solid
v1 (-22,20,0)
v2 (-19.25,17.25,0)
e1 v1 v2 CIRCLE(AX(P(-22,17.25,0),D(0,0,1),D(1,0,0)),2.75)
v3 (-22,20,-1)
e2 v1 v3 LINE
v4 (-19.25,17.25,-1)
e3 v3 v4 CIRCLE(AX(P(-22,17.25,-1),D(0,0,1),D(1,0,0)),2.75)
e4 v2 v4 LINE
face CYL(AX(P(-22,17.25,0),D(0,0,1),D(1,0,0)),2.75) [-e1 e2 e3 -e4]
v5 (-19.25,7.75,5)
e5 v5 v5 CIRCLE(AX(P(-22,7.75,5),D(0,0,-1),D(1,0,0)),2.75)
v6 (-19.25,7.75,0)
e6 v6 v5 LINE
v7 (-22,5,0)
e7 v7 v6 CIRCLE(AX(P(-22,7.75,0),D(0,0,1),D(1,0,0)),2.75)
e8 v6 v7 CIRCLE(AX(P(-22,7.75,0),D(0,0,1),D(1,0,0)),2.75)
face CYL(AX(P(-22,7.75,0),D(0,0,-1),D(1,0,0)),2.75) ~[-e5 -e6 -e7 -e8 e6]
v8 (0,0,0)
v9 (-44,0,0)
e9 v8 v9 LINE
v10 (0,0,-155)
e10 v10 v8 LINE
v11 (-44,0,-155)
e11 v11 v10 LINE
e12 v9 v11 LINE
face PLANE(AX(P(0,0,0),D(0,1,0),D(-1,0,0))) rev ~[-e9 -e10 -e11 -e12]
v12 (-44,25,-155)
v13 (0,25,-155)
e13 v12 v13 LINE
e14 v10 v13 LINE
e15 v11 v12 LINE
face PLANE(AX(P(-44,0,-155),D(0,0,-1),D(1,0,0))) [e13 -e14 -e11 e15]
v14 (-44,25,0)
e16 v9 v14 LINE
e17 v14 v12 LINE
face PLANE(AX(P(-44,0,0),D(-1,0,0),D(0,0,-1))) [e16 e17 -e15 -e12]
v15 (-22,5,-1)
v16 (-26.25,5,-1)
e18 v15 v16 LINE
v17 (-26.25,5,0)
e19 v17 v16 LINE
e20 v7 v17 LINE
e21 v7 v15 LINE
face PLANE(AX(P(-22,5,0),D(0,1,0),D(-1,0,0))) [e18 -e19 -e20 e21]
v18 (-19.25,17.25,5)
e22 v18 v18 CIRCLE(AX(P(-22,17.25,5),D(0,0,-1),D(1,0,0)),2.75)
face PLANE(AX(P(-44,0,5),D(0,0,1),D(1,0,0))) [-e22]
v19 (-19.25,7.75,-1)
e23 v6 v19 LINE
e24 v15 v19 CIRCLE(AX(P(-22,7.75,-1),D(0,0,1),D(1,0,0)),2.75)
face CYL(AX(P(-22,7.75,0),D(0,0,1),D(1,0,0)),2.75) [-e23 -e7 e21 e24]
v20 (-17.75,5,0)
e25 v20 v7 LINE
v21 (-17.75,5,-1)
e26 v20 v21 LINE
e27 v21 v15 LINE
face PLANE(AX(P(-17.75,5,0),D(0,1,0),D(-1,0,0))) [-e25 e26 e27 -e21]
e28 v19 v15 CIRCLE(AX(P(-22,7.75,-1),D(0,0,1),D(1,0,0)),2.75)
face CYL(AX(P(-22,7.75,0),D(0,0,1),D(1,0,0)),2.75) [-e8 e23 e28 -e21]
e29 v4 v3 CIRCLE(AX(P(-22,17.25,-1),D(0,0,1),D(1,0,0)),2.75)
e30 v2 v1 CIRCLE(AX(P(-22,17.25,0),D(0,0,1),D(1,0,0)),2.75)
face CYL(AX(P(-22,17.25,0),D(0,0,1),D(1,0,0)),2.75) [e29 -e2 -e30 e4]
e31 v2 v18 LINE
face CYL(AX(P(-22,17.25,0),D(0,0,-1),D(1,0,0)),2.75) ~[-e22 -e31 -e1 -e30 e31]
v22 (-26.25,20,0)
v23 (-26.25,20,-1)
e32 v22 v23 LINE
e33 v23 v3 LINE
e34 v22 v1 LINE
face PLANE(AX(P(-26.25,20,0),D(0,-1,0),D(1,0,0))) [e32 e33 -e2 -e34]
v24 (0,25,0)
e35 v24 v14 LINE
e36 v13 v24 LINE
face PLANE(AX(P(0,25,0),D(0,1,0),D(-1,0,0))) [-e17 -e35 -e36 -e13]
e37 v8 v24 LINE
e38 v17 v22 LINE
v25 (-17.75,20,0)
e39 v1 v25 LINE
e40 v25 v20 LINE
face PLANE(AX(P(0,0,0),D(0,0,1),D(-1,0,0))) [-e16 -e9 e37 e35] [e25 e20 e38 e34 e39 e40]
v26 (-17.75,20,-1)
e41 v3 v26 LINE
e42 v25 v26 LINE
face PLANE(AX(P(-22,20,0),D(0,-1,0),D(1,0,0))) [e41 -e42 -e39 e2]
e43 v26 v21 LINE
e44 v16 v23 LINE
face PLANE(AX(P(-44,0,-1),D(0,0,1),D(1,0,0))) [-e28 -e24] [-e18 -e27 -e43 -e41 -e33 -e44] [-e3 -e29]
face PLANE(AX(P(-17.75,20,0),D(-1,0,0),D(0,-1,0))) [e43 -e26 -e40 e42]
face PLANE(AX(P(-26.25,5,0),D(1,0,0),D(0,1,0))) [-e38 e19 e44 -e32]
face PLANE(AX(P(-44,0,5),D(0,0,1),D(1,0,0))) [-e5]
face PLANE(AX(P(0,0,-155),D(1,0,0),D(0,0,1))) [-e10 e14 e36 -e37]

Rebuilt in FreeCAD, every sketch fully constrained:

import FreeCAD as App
import Part
import Sketcher

doc = App.newDocument("Part")
body = doc.addObject("PartDesign::Body", "Body")

sketch1 = body.newObject("Sketcher::SketchObject", "Sketch")
sketch1.AttachmentSupport = (doc.getObject("XZ_Plane"), [""])
sketch1.MapMode = "FlatFace"
sketch1.addGeometry([
    Part.LineSegment(App.Vector(-44, 0, 0), App.Vector(0, 0, 0)),
    Part.LineSegment(App.Vector(0, 0, 0), App.Vector(0, -155, 0)),
    Part.LineSegment(App.Vector(0, -155, 0), App.Vector(-44, -155, 0)),
    Part.LineSegment(App.Vector(-44, -155, 0), App.Vector(-44, 0, 0)),
], False)
sketch1.addConstraint([
    Sketcher.Constraint("Coincident", 0, 2, 1, 1),
    Sketcher.Constraint("Coincident", 1, 2, 2, 1),
    Sketcher.Constraint("Coincident", 2, 2, 3, 1),
    Sketcher.Constraint("Coincident", 3, 2, 0, 1),
    Sketcher.Constraint("Horizontal", 0),
    Sketcher.Constraint("Vertical", 1),
    Sketcher.Constraint("Horizontal", 2),
    Sketcher.Constraint("Vertical", 3),
    Sketcher.Constraint("Coincident", 0, 2, -1, 1),
    Sketcher.Constraint("DistanceX", 0, 1, 0, 2, 44.0),
    Sketcher.Constraint("DistanceY", 1, 2, 1, 1, 155.0),
])
pad1 = body.newObject("PartDesign::Pad", "Pad")
pad1.Profile = sketch1
pad1.Length = 25
pad1.Reversed = True

sketch2 = body.newObject("Sketcher::SketchObject", "Sketch001")
sketch2.AttachmentSupport = (doc.getObject("XY_Plane"), [""])
sketch2.MapMode = "FlatFace"
sketch2.addGeometry([
    Part.LineSegment(App.Vector(-22, 20, 0), App.Vector(-26.2, 20, 0)),
    Part.LineSegment(App.Vector(-26.2, 20, 0), App.Vector(-26.2, 5, 0)),
    Part.LineSegment(App.Vector(-26.2, 5, 0), App.Vector(-22, 5, 0)),
    Part.LineSegment(App.Vector(-22, 5, 0), App.Vector(-17.8, 5, 0)),
    Part.LineSegment(App.Vector(-17.8, 5, 0), App.Vector(-17.8, 20, 0)),
    Part.LineSegment(App.Vector(-17.8, 20, 0), App.Vector(-22, 20, 0)),
    Part.Circle(App.Vector(-22, 7.8, 0), App.Vector(0, 0, 1), 2.8),
    Part.Circle(App.Vector(-22, 17.2, 0), App.Vector(0, 0, 1), 2.8),
], False)
sketch2.addConstraint([
    Sketcher.Constraint("Coincident", 0, 2, 1, 1),
    Sketcher.Constraint("Coincident", 1, 2, 2, 1),
    Sketcher.Constraint("Coincident", 2, 2, 3, 1),
    Sketcher.Constraint("Coincident", 3, 2, 4, 1),
    Sketcher.Constraint("Coincident", 4, 2, 5, 1),
    Sketcher.Constraint("Coincident", 5, 2, 0, 1),
    Sketcher.Constraint("Horizontal", 0),
    Sketcher.Constraint("Vertical", 1),
    Sketcher.Constraint("Horizontal", 2),
    Sketcher.Constraint("Horizontal", 3),
    Sketcher.Constraint("Vertical", 4),
    Sketcher.Constraint("Horizontal", 5),
    Sketcher.Constraint("Equal", 6, 7),
    Sketcher.Constraint("Vertical", 6, 3, 7, 3),
    Sketcher.Constraint("Vertical", 7, 3, 2, 2),
    Sketcher.Constraint("Vertical", 2, 2, 5, 2),
    Sketcher.Constraint("Equal", 2, 3),
    Sketcher.Constraint("Diameter", 6, 5.5),
    Sketcher.Constraint("DistanceY", 1, 2, 1, 1, 15.0),
    Sketcher.Constraint("DistanceX", 1, 2, 3, 2, 8.5),
    Sketcher.Constraint("DistanceX", 6, 3, -1, 1, 22.0),
    Sketcher.Constraint("DistanceY", -1, 1, 0, 2, 20.0),
    Sketcher.Constraint("DistanceY", 6, 3, 7, 3, 9.5),
    Sketcher.Constraint("DistanceY", -1, 1, 6, 3, 7.75),
])
pocket1 = body.newObject("PartDesign::Pocket", "Pocket")
pocket1.Profile = sketch2
pocket1.Length = 1

sketch3 = body.newObject("Sketcher::SketchObject", "Sketch002")
sketch3.AttachmentSupport = (doc.getObject("XY_Plane"), [""])
sketch3.MapMode = "FlatFace"
sketch3.addGeometry([
    Part.Circle(App.Vector(-22, 7.8, 0), App.Vector(0, 0, 1), 2.8),
    Part.Circle(App.Vector(-22, 17.2, 0), App.Vector(0, 0, 1), 2.8),
], False)
sketch3.addConstraint([
    Sketcher.Constraint("Equal", 0, 1),
    Sketcher.Constraint("Vertical", 0, 3, 1, 3),
    Sketcher.Constraint("Diameter", 0, 5.5),
    Sketcher.Constraint("DistanceX", 0, 3, -1, 1, 22.0),
    Sketcher.Constraint("DistanceY", 0, 3, 1, 3, 9.5),
    Sketcher.Constraint("DistanceY", -1, 1, 0, 3, 7.75),
])
pad2 = body.newObject("PartDesign::Pad", "Pad001")
pad2.Profile = sketch3
pad2.Length = 5

doc.recompute()
